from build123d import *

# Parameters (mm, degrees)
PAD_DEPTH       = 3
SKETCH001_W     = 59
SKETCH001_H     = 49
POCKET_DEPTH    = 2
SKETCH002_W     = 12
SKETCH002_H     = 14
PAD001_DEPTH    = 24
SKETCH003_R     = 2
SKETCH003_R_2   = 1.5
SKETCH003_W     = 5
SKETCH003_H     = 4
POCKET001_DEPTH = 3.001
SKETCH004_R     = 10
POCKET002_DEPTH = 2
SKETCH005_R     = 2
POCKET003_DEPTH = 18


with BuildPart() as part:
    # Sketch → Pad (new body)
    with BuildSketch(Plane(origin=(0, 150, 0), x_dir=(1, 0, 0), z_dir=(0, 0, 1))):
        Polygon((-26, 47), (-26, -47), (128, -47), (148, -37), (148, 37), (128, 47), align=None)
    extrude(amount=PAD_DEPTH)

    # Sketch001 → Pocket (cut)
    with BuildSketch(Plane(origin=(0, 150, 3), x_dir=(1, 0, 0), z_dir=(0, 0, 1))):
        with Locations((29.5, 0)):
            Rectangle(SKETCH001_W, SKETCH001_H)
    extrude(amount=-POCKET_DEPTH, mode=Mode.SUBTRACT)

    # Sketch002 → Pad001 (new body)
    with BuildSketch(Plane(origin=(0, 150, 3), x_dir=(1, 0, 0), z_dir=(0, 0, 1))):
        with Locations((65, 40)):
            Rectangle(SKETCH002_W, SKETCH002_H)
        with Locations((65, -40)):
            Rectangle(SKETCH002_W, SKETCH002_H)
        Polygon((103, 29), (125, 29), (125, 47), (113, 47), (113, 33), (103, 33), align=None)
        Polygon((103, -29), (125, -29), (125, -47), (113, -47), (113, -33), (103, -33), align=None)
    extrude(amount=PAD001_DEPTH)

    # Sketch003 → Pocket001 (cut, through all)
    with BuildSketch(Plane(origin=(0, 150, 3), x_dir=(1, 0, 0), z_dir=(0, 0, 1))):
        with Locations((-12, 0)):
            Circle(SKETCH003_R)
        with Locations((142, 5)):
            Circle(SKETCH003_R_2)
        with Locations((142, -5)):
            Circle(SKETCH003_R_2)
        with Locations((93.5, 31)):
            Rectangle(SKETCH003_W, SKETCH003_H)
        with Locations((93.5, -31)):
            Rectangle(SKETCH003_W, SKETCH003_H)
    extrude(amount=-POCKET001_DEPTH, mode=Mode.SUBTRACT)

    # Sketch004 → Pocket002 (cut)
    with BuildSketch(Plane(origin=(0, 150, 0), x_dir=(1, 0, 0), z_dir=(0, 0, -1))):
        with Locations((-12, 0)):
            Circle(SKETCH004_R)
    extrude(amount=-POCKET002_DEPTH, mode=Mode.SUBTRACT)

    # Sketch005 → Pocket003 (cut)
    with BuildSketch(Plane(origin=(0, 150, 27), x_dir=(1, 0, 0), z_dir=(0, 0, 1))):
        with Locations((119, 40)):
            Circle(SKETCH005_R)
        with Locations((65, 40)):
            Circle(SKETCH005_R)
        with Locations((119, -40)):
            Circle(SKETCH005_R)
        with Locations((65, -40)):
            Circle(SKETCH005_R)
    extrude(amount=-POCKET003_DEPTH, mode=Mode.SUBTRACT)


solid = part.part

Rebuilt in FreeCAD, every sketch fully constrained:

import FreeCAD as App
import Part
import Sketcher
Q = App.Units.Quantity

doc = App.newDocument("Part")
params = doc.addObject("Spreadsheet::Sheet", "Params")
for row, (alias, value) in enumerate([
    ("sketch1_width", "154 mm"),
    ("sketch1_height", "94 mm"),
    ("sketch1_height2", "74 mm"),
    ("pad1_length", "3 mm"),
    ("sketch2_width", "59 mm"),
    ("sketch2_height", "49 mm"),
    ("pocket1_length", "2 mm"),
    ("sketch3_width", "12 mm"),
    ("sketch3_width2", "22 mm"),
    ("sketch3_height", "14 mm"),
    ("sketch3_height2", "18 mm"),
    ("pad2_length", "24 mm"),
    ("sketch4_diameter", "4 mm"),
    ("sketch4_diameter2", "3 mm"),
    ("sketch4_width", "5 mm"),
    ("sketch4_height", "4 mm"),
    ("sketch5_diameter", "20 mm"),
    ("pocket3_length", "2 mm"),
    ("sketch6_diameter", "4 mm"),
    ("pocket4_length", "18 mm"),
], start=1):
    params.set(f"A{row}", alias)
    params.set(f"B{row}", "=" + value)
    params.setAlias(f"B{row}", alias)

body = doc.addObject("PartDesign::Body", "Body")

# Sketch on XY plane
sketch1 = body.newObject("Sketcher::SketchObject", "Sketch")
sketch1.AttachmentSupport = (doc.getObject("XY_Plane"), [""])
sketch1.MapMode = "FlatFace"
sketch1.addGeometry(Part.LineSegment(App.Vector(-26, 197, 0), App.Vector(-26, 103, 0)), False)
sketch1.addGeometry(Part.LineSegment(App.Vector(-26, 103, 0), App.Vector(128, 103, 0)), False)
sketch1.addGeometry(Part.LineSegment(App.Vector(128, 103, 0), App.Vector(148, 113, 0)), False)
sketch1.addGeometry(Part.LineSegment(App.Vector(148, 113, 0), App.Vector(148, 187, 0)), False)
sketch1.addGeometry(Part.LineSegment(App.Vector(148, 187, 0), App.Vector(128, 197, 0)), False)
sketch1.addGeometry(Part.LineSegment(App.Vector(128, 197, 0), App.Vector(-26, 197, 0)), False)
sketch1.addConstraint(Sketcher.Constraint("Coincident", 0, 2, 1, 1))
sketch1.addConstraint(Sketcher.Constraint("Coincident", 1, 2, 2, 1))
sketch1.addConstraint(Sketcher.Constraint("Coincident", 2, 2, 3, 1))
sketch1.addConstraint(Sketcher.Constraint("Coincident", 3, 2, 4, 1))
sketch1.addConstraint(Sketcher.Constraint("Coincident", 4, 2, 5, 1))
sketch1.addConstraint(Sketcher.Constraint("Coincident", 5, 2, 0, 1))
sketch1.addConstraint(Sketcher.Constraint("Vertical", 0))
sketch1.addConstraint(Sketcher.Constraint("Horizontal", 1))
sketch1.addConstraint(Sketcher.Constraint("Vertical", 3))
sketch1.addConstraint(Sketcher.Constraint("Horizontal", 5))
sketch1.addConstraint(Sketcher.Constraint("Vertical", 1, 2, 4, 2))
sketch1.addConstraint(Sketcher.Constraint("Equal", 2, 4))
sketch1.addConstraint(Sketcher.Constraint("DistanceX", 1, 1, 1, 2, Q("154 mm")))
sketch1.addConstraint(Sketcher.Constraint("DistanceY", 0, 2, 0, 1, Q("94 mm")))
sketch1.addConstraint(Sketcher.Constraint("DistanceY", 3, 1, 3, 2, Q("74 mm")))
sketch1.addConstraint(Sketcher.Constraint("DistanceX", 0, 2, -1, 1, Q("26 mm")))
sketch1.addConstraint(Sketcher.Constraint("DistanceY", -1, 1, 0, 2, Q("103 mm")))
sketch1.addConstraint(Sketcher.Constraint("DistanceX", -1, 1, 2, 2, Q("148 mm")))
sketch1.setExpression("Constraints[12]", "Params.sketch1_width")
sketch1.setExpression("Constraints[13]", "Params.sketch1_height")
sketch1.setExpression("Constraints[14]", "Params.sketch1_height2")
pad1 = body.newObject("PartDesign::Pad", "Pad")
pad1.Profile = sketch1
pad1.setExpression("Length", "Params.pad1_length")

# Sketch on XY plane
sketch2 = body.newObject("Sketcher::SketchObject", "Sketch001")
sketch2.AttachmentSupport = (doc.getObject("XY_Plane"), [""])
sketch2.MapMode = "FlatFace"
sketch2.AttachmentOffset = App.Placement(App.Vector(0, 0, 3), App.Rotation())
sketch2.addGeometry(Part.LineSegment(App.Vector(0, 174, 0), App.Vector(0, 126, 0)), False)
sketch2.addGeometry(Part.LineSegment(App.Vector(0, 126, 0), App.Vector(59, 126, 0)), False)
sketch2.addGeometry(Part.LineSegment(App.Vector(59, 126, 0), App.Vector(59, 174, 0)), False)
sketch2.addGeometry(Part.LineSegment(App.Vector(59, 174, 0), App.Vector(0, 174, 0)), False)
sketch2.addConstraint(Sketcher.Constraint("Coincident", 0, 2, 1, 1))
sketch2.addConstraint(Sketcher.Constraint("Coincident", 1, 2, 2, 1))
sketch2.addConstraint(Sketcher.Constraint("Coincident", 2, 2, 3, 1))
sketch2.addConstraint(Sketcher.Constraint("Coincident", 3, 2, 0, 1))
sketch2.addConstraint(Sketcher.Constraint("Vertical", 0))
sketch2.addConstraint(Sketcher.Constraint("Horizontal", 1))
sketch2.addConstraint(Sketcher.Constraint("Vertical", 2))
sketch2.addConstraint(Sketcher.Constraint("Horizontal", 3))
sketch2.addConstraint(Sketcher.Constraint("PointOnObject", 0, 2, -2))
sketch2.addConstraint(Sketcher.Constraint("DistanceX", 1, 1, 1, 2, Q("59 mm")))
sketch2.addConstraint(Sketcher.Constraint("DistanceY", 0, 2, 0, 1, Q("49 mm")))
sketch2.addConstraint(Sketcher.Constraint("DistanceY", -1, 1, 0, 2, Q("125.5 mm")))
sketch2.setExpression("Constraints[9]", "Params.sketch2_width")
sketch2.setExpression("Constraints[10]", "Params.sketch2_height")
pocket1 = body.newObject("PartDesign::Pocket", "Pocket")
pocket1.Profile = sketch2
pocket1.setExpression("Length", "Params.pocket1_length")

# Sketch on XY plane
sketch3 = body.newObject("Sketcher::SketchObject", "Sketch002")
sketch3.AttachmentSupport = (doc.getObject("XY_Plane"), [""])
sketch3.MapMode = "FlatFace"
sketch3.AttachmentOffset = App.Placement(App.Vector(0, 0, 3), App.Rotation())
sketch3.addGeometry(Part.LineSegment(App.Vector(59, 197, 0), App.Vector(59, 183, 0)), False)
sketch3.addGeometry(Part.LineSegment(App.Vector(59, 183, 0), App.Vector(71, 183, 0)), False)
sketch3.addGeometry(Part.LineSegment(App.Vector(71, 183, 0), App.Vector(71, 197, 0)), False)
sketch3.addGeometry(Part.LineSegment(App.Vector(71, 197, 0), App.Vector(59, 197, 0)), False)
sketch3.addGeometry(Part.LineSegment(App.Vector(59, 117, 0), App.Vector(59, 103, 0)), False)
sketch3.addGeometry(Part.LineSegment(App.Vector(59, 103, 0), App.Vector(71, 103, 0)), False)
sketch3.addGeometry(Part.LineSegment(App.Vector(71, 103, 0), App.Vector(71, 117, 0)), False)
sketch3.addGeometry(Part.LineSegment(App.Vector(71, 117, 0), App.Vector(59, 117, 0)), False)
sketch3.addGeometry(Part.LineSegment(App.Vector(103, 179, 0), App.Vector(125, 179, 0)), False)
sketch3.addGeometry(Part.LineSegment(App.Vector(125, 179, 0), App.Vector(125, 197, 0)), False)
sketch3.addGeometry(Part.LineSegment(App.Vector(125, 197, 0), App.Vector(113, 197, 0)), False)
sketch3.addGeometry(Part.LineSegment(App.Vector(113, 197, 0), App.Vector(113, 183, 0)), False)
sketch3.addGeometry(Part.LineSegment(App.Vector(113, 183, 0), App.Vector(103, 183, 0)), False)
sketch3.addGeometry(Part.LineSegment(App.Vector(103, 183, 0), App.Vector(103, 179, 0)), False)
sketch3.addGeometry(Part.LineSegment(App.Vector(125, 121, 0), App.Vector(103, 121, 0)), False)
sketch3.addGeometry(Part.LineSegment(App.Vector(103, 121, 0), App.Vector(103, 117, 0)), False)
sketch3.addGeometry(Part.LineSegment(App.Vector(103, 117, 0), App.Vector(113, 117, 0)), False)
sketch3.addGeometry(Part.LineSegment(App.Vector(113, 117, 0), App.Vector(113, 103, 0)), False)
sketch3.addGeometry(Part.LineSegment(App.Vector(113, 103, 0), App.Vector(125, 103, 0)), False)
sketch3.addGeometry(Part.LineSegment(App.Vector(125, 103, 0), App.Vector(125, 121, 0)), False)
sketch3.addConstraint(Sketcher.Constraint("Coincident", 0, 2, 1, 1))
sketch3.addConstraint(Sketcher.Constraint("Coincident", 1, 2, 2, 1))
sketch3.addConstraint(Sketcher.Constraint("Coincident", 2, 2, 3, 1))
sketch3.addConstraint(Sketcher.Constraint("Coincident", 3, 2, 0, 1))
sketch3.addConstraint(Sketcher.Constraint("Coincident", 4, 2, 5, 1))
sketch3.addConstraint(Sketcher.Constraint("Coincident", 5, 2, 6, 1))
sketch3.addConstraint(Sketcher.Constraint("Coincident", 6, 2, 7, 1))
sketch3.addConstraint(Sketcher.Constraint("Coincident", 7, 2, 4, 1))
sketch3.addConstraint(Sketcher.Constraint("Coincident", 8, 2, 9, 1))
sketch3.addConstraint(Sketcher.Constraint("Coincident", 9, 2, 10, 1))
sketch3.addConstraint(Sketcher.Constraint("Coincident", 10, 2, 11, 1))
sketch3.addConstraint(Sketcher.Constraint("Coincident", 11, 2, 12, 1))
sketch3.addConstraint(Sketcher.Constraint("Coincident", 12, 2, 13, 1))
sketch3.addConstraint(Sketcher.Constraint("Coincident", 13, 2, 8, 1))
sketch3.addConstraint(Sketcher.Constraint("Coincident", 14, 2, 15, 1))
sketch3.addConstraint(Sketcher.Constraint("Coincident", 15, 2, 16, 1))
sketch3.addConstraint(Sketcher.Constraint("Coincident", 16, 2, 17, 1))
sketch3.addConstraint(Sketcher.Constraint("Coincident", 17, 2, 18, 1))
sketch3.addConstraint(Sketcher.Constraint("Coincident", 18, 2, 19, 1))
sketch3.addConstraint(Sketcher.Constraint("Coincident", 19, 2, 14, 1))
sketch3.addConstraint(Sketcher.Constraint("Vertical", 0))
sketch3.addConstraint(Sketcher.Constraint("Horizontal", 1))
sketch3.addConstraint(Sketcher.Constraint("Vertical", 2))
sketch3.addConstraint(Sketcher.Constraint("Horizontal", 3))
sketch3.addConstraint(Sketcher.Constraint("Vertical", 4))
sketch3.addConstraint(Sketcher.Constraint("Horizontal", 5))
sketch3.addConstraint(Sketcher.Constraint("Vertical", 6))
sketch3.addConstraint(Sketcher.Constraint("Horizontal", 7))
sketch3.addConstraint(Sketcher.Constraint("Horizontal", 8))
sketch3.addConstraint(Sketcher.Constraint("Vertical", 9))
sketch3.addConstraint(Sketcher.Constraint("Horizontal", 10))
sketch3.addConstraint(Sketcher.Constraint("Vertical", 11))
sketch3.addConstraint(Sketcher.Constraint("Horizontal", 12))
sketch3.addConstraint(Sketcher.Constraint("Vertical", 13))
sketch3.addConstraint(Sketcher.Constraint("Horizontal", 14))
sketch3.addConstraint(Sketcher.Constraint("Vertical", 15))
sketch3.addConstraint(Sketcher.Constraint("Horizontal", 16))
sketch3.addConstraint(Sketcher.Constraint("Vertical", 17))
sketch3.addConstraint(Sketcher.Constraint("Horizontal", 18))
sketch3.addConstraint(Sketcher.Constraint("Vertical", 19))
sketch3.addConstraint(Sketcher.Constraint("Horizontal", 3, 2, 9, 2))
sketch3.addConstraint(Sketcher.Constraint("Horizontal", 1, 2, 11, 2))
sketch3.addConstraint(Sketcher.Constraint("Horizontal", 7, 2, 15, 2))
sketch3.addConstraint(Sketcher.Constraint("Horizontal", 5, 2, 17, 2))
sketch3.addConstraint(Sketcher.Constraint("Vertical", 3, 2, 4, 2))
sketch3.addConstraint(Sketcher.Constraint("Vertical", 2, 2, 5, 2))
sketch3.addConstraint(Sketcher.Constraint("Vertical", 13, 2, 14, 2))
sketch3.addConstraint(Sketcher.Constraint("Vertical", 11, 2, 16, 2))
sketch3.addConstraint(Sketcher.Constraint("Vertical", 9, 2, 18, 2))
sketch3.addConstraint(Sketcher.Constraint("Equal", 7, 10))
sketch3.addConstraint(Sketcher.Constraint("Equal", 2, 4))
sketch3.addConstraint(Sketcher.Constraint("Equal", 13, 15))
sketch3.addConstraint(Sketcher.Constraint("DistanceX", 1, 1, 1, 2, Q("12 mm")))
sketch3.addConstraint(Sketcher.Constraint("DistanceX", 8, 1, 8, 2, Q("22 mm")))
sketch3.addConstraint(Sketcher.Constraint("DistanceY", 0, 2, 0, 1, Q("14 mm")))
sketch3.addConstraint(Sketcher.Constraint("DistanceY", 9, 1, 9, 2, Q("18 mm")))
sketch3.addConstraint(Sketcher.Constraint("DistanceX", -1, 1, 0, 2, Q("59 mm")))
sketch3.addConstraint(Sketcher.Constraint("DistanceY", -1, 1, 0, 2, Q("183 mm")))
sketch3.addConstraint(Sketcher.Constraint("DistanceY", -1, 1, 4, 2, Q("103 mm")))
sketch3.addConstraint(Sketcher.Constraint("DistanceX", -1, 1, 8, 2, Q("125 mm")))
sketch3.setExpression("Constraints[52]", "Params.sketch3_width")
sketch3.setExpression("Constraints[53]", "Params.sketch3_width2")
sketch3.setExpression("Constraints[54]", "Params.sketch3_height")
sketch3.setExpression("Constraints[55]", "Params.sketch3_height2")
pad2 = body.newObject("PartDesign::Pad", "Pad001")
pad2.Profile = sketch3
pad2.setExpression("Length", "Params.pad2_length")

# Sketch on XY plane
sketch4 = body.newObject("Sketcher::SketchObject", "Sketch003")
sketch4.AttachmentSupport = (doc.getObject("XY_Plane"), [""])
sketch4.MapMode = "FlatFace"
sketch4.AttachmentOffset = App.Placement(App.Vector(0, 0, 3), App.Rotation())
sketch4.addGeometry(Part.Circle(App.Vector(-12, 150, 0), App.Vector(0, 0, 1), 2), False)
sketch4.addGeometry(Part.Circle(App.Vector(142, 155, 0), App.Vector(0, 0, 1), 1.5), False)
sketch4.addGeometry(Part.Circle(App.Vector(142, 145, 0), App.Vector(0, 0, 1), 1.5), False)
sketch4.addGeometry(Part.LineSegment(App.Vector(91, 183, 0), App.Vector(91, 179, 0)), False)
sketch4.addGeometry(Part.LineSegment(App.Vector(91, 179, 0), App.Vector(96, 179, 0)), False)
sketch4.addGeometry(Part.LineSegment(App.Vector(96, 179, 0), App.Vector(96, 183, 0)), False)
sketch4.addGeometry(Part.LineSegment(App.Vector(96, 183, 0), App.Vector(91, 183, 0)), False)
sketch4.addGeometry(Part.LineSegment(App.Vector(91, 121, 0), App.Vector(91, 117, 0)), False)
sketch4.addGeometry(Part.LineSegment(App.Vector(91, 117, 0), App.Vector(96, 117, 0)), False)
sketch4.addGeometry(Part.LineSegment(App.Vector(96, 117, 0), App.Vector(96, 121, 0)), False)
sketch4.addGeometry(Part.LineSegment(App.Vector(96, 121, 0), App.Vector(91, 121, 0)), False)
sketch4.addConstraint(Sketcher.Constraint("Coincident", 3, 2, 4, 1))
sketch4.addConstraint(Sketcher.Constraint("Coincident", 4, 2, 5, 1))
sketch4.addConstraint(Sketcher.Constraint("Coincident", 5, 2, 6, 1))
sketch4.addConstraint(Sketcher.Constraint("Coincident", 6, 2, 3, 1))
sketch4.addConstraint(Sketcher.Constraint("Coincident", 7, 2, 8, 1))
sketch4.addConstraint(Sketcher.Constraint("Coincident", 8, 2, 9, 1))
sketch4.addConstraint(Sketcher.Constraint("Coincident", 9, 2, 10, 1))
sketch4.addConstraint(Sketcher.Constraint("Coincident", 10, 2, 7, 1))
sketch4.addConstraint(Sketcher.Constraint("Vertical", 3))
sketch4.addConstraint(Sketcher.Constraint("Horizontal", 4))
sketch4.addConstraint(Sketcher.Constraint("Vertical", 5))
sketch4.addConstraint(Sketcher.Constraint("Horizontal", 6))
sketch4.addConstraint(Sketcher.Constraint("Vertical", 7))
sketch4.addConstraint(Sketcher.Constraint("Horizontal", 8))
sketch4.addConstraint(Sketcher.Constraint("Vertical", 9))
sketch4.addConstraint(Sketcher.Constraint("Horizontal", 10))
sketch4.addConstraint(Sketcher.Constraint("Equal", 1, 2))
sketch4.addConstraint(Sketcher.Constraint("Vertical", 1, 3, 2, 3))
sketch4.addConstraint(Sketcher.Constraint("Vertical", 6, 2, 7, 2))
sketch4.addConstraint(Sketcher.Constraint("Vertical", 5, 2, 8, 2))
sketch4.addConstraint(Sketcher.Constraint("Equal", 5, 7))
sketch4.addConstraint(Sketcher.Constraint("Diameter", 0, Q("4 mm")))
sketch4.addConstraint(Sketcher.Constraint("Diameter", 1, Q("3 mm")))
sketch4.addConstraint(Sketcher.Constraint("DistanceX", 4, 1, 4, 2, Q("5 mm")))
sketch4.addConstraint(Sketcher.Constraint("DistanceY", 3, 2, 3, 1, Q("4 mm")))
sketch4.addConstraint(Sketcher.Constraint("DistanceX", 0, 3, -1, 1, Q("12 mm")))
sketch4.addConstraint(Sketcher.Constraint("DistanceY", -1, 1, 0, 3, Q("150 mm")))
sketch4.addConstraint(Sketcher.Constraint("DistanceX", -1, 1, 1, 3, Q("142 mm")))
sketch4.addConstraint(Sketcher.Constraint("DistanceY", -1, 1, 1, 3, Q("155 mm")))
sketch4.addConstraint(Sketcher.Constraint("DistanceY", -1, 1, 2, 3, Q("145 mm")))
sketch4.addConstraint(Sketcher.Constraint("DistanceX", -1, 1, 3, 2, Q("91 mm")))
sketch4.addConstraint(Sketcher.Constraint("DistanceY", -1, 1, 3, 2, Q("179 mm")))
sketch4.addConstraint(Sketcher.Constraint("DistanceY", -1, 1, 7, 2, Q("117 mm")))
sketch4.setExpression("Constraints[21]", "Params.sketch4_diameter")
sketch4.setExpression("Constraints[22]", "Params.sketch4_diameter2")
sketch4.setExpression("Constraints[23]", "Params.sketch4_width")
sketch4.setExpression("Constraints[24]", "Params.sketch4_height")
pocket2 = body.newObject("PartDesign::Pocket", "Pocket001")
pocket2.Profile = sketch4
pocket2.Type = "ThroughAll"

# Sketch on XY plane
sketch5 = body.newObject("Sketcher::SketchObject", "Sketch004")
sketch5.AttachmentSupport = (doc.getObject("XY_Plane"), [""])
sketch5.MapMode = "FlatFace"
sketch5.addGeometry(Part.Circle(App.Vector(-12, 150, 0), App.Vector(0, 0, 1), 10), False)
sketch5.addConstraint(Sketcher.Constraint("Diameter", 0, Q("20 mm")))
sketch5.addConstraint(Sketcher.Constraint("DistanceX", 0, 3, -1, 1, Q("12 mm")))
sketch5.addConstraint(Sketcher.Constraint("DistanceY", -1, 1, 0, 3, Q("150 mm")))
sketch5.setExpression("Constraints[0]", "Params.sketch5_diameter")
pocket3 = body.newObject("PartDesign::Pocket", "Pocket002")
pocket3.Profile = sketch5
pocket3.setExpression("Length", "Params.pocket3_length")
pocket3.Reversed = True

# Sketch on XY plane
sketch6 = body.newObject("Sketcher::SketchObject", "Sketch005")
sketch6.AttachmentSupport = (doc.getObject("XY_Plane"), [""])
sketch6.MapMode = "FlatFace"
sketch6.AttachmentOffset = App.Placement(App.Vector(0, 0, 27), App.Rotation())
sketch6.addGeometry(Part.Circle(App.Vector(119, 190, 0), App.Vector(0, 0, 1), 2), False)
sketch6.addGeometry(Part.Circle(App.Vector(65, 190, 0), App.Vector(0, 0, 1), 2), False)
sketch6.addGeometry(Part.Circle(App.Vector(119, 110, 0), App.Vector(0, 0, 1), 2), False)
sketch6.addGeometry(Part.Circle(App.Vector(65, 110, 0), App.Vector(0, 0, 1), 2), False)
sketch6.addConstraint(Sketcher.Constraint("Equal", 0, 1))
sketch6.addConstraint(Sketcher.Constraint("Equal", 1, 2))
sketch6.addConstraint(Sketcher.Constraint("Equal", 2, 3))
sketch6.addConstraint(Sketcher.Constraint("Horizontal", 0, 3, 1, 3))
sketch6.addConstraint(Sketcher.Constraint("Horizontal", 2, 3, 3, 3))
sketch6.addConstraint(Sketcher.Constraint("Vertical", 0, 3, 2, 3))
sketch6.addConstraint(Sketcher.Constraint("Vertical", 1, 3, 3, 3))
sketch6.addConstraint(Sketcher.Constraint("Diameter", 0, Q("4 mm")))
sketch6.addConstraint(Sketcher.Constraint("DistanceX", -1, 1, 0, 3, Q("119 mm")))
sketch6.addConstraint(Sketcher.Constraint("DistanceY", -1, 1, 0, 3, Q("190 mm")))
sketch6.addConstraint(Sketcher.Constraint("DistanceX", -1, 1, 1, 3, Q("65 mm")))
sketch6.addConstraint(Sketcher.Constraint("DistanceY", -1, 1, 2, 3, Q("110 mm")))
sketch6.setExpression("Constraints[7]", "Params.sketch6_diameter")
pocket4 = body.newObject("PartDesign::Pocket", "Pocket003")
pocket4.Profile = sketch6
pocket4.setExpression("Length", "Params.pocket4_length")

doc.recompute()
